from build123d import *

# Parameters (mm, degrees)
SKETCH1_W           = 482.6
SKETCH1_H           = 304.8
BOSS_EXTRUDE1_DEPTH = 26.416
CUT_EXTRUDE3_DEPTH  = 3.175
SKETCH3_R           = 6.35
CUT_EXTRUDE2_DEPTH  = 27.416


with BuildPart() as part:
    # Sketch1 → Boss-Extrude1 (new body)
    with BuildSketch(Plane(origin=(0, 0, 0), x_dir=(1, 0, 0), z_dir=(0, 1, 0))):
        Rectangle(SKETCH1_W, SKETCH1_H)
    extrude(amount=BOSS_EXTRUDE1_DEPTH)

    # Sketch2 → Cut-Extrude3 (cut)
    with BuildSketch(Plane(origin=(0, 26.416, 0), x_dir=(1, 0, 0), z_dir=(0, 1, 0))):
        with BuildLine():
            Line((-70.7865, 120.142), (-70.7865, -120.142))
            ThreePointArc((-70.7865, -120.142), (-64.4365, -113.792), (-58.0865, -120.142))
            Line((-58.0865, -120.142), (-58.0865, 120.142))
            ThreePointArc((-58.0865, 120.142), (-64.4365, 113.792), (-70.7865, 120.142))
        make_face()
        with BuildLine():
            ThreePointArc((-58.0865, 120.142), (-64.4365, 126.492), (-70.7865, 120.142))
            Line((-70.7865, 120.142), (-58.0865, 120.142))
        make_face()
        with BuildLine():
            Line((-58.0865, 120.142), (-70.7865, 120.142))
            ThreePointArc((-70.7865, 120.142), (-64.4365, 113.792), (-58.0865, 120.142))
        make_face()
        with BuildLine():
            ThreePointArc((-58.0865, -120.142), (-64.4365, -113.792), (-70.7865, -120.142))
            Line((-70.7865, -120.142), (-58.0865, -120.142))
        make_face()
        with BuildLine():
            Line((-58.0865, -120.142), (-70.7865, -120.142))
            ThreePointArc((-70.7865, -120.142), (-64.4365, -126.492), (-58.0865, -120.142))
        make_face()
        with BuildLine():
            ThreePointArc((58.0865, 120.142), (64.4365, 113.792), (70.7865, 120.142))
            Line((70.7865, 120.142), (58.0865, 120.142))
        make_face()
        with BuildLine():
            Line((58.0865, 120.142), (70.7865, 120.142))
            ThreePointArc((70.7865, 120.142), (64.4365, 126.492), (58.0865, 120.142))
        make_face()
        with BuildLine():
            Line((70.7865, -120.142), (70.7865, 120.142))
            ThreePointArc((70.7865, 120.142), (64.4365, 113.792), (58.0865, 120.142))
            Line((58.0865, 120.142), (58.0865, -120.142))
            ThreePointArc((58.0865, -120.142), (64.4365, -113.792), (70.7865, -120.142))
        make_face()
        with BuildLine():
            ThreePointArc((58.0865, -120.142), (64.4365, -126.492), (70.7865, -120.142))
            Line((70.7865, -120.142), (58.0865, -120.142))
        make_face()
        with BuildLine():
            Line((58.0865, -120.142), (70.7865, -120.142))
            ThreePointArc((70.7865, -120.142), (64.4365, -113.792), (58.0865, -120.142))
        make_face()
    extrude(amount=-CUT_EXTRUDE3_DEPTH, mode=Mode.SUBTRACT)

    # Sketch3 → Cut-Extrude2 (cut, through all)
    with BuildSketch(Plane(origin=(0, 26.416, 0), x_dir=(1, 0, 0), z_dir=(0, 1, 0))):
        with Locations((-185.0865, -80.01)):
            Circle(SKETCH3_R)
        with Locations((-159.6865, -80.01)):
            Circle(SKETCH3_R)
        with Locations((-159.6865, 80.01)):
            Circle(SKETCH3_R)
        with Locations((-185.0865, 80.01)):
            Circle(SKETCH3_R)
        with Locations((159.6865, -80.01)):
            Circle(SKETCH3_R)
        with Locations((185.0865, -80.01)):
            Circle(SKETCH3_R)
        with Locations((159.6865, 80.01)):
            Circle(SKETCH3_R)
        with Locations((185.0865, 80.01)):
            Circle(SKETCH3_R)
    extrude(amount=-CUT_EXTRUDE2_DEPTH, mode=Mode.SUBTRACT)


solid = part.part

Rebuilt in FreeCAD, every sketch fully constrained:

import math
import FreeCAD as App
import Part
import Sketcher
from FreeCAD import Vector
Q = App.Units.Quantity

doc = App.newDocument("Part")
body = doc.addObject("PartDesign::Body", "Body")

sketch1 = body.newObject("Sketcher::SketchObject", "Sketch")
sketch1.AttachmentSupport = (doc.getObject("XZ_Plane"), [""])
sketch1.MapMode = "FlatFace"
sketch1.addGeometry(Part.LineSegment(Vector(-241, -152, 0), Vector(-241, 152, 0)), False)
sketch1.addGeometry(Part.LineSegment(Vector(-241, 152, 0), Vector(241, 152, 0)), False)
sketch1.addGeometry(Part.LineSegment(Vector(241, 152, 0), Vector(241, -152, 0)), False)
sketch1.addGeometry(Part.LineSegment(Vector(241, -152, 0), Vector(-241, -152, 0)), False)
sketch1.addConstraint(Sketcher.Constraint("Coincident", 0, 2, 1, 1))
sketch1.addConstraint(Sketcher.Constraint("Coincident", 1, 2, 2, 1))
sketch1.addConstraint(Sketcher.Constraint("Coincident", 2, 2, 3, 1))
sketch1.addConstraint(Sketcher.Constraint("Coincident", 3, 2, 0, 1))
sketch1.addConstraint(Sketcher.Constraint("Vertical", 0))
sketch1.addConstraint(Sketcher.Constraint("Horizontal", 1))
sketch1.addConstraint(Sketcher.Constraint("Vertical", 2))
sketch1.addConstraint(Sketcher.Constraint("Horizontal", 3))
sketch1.addConstraint(Sketcher.Constraint("Symmetric", 0, 2, 2, 2, -1, 1))
sketch1.addConstraint(Sketcher.Constraint("DistanceX", 1, 1, 1, 2, Q("19 in")))
sketch1.addConstraint(Sketcher.Constraint("DistanceY", 0, 1, 0, 2, Q("12 in")))
pad1 = body.newObject("PartDesign::Pad", "Pad")
pad1.Profile = sketch1
pad1.Length = Q("1.04 in")
pad1.Reversed = True

sketch2 = body.newObject("Sketcher::SketchObject", "Sketch001")
sketch2.AttachmentSupport = (doc.getObject("XZ_Plane"), [""])
sketch2.MapMode = "FlatFace"
sketch2.AttachmentOffset = App.Placement(Vector(0, 0, -1.04 * 25.4), App.Rotation())
sketch2.addGeometry(Part.LineSegment(Vector(-71, -120, 0), Vector(-71, 120, 0)), False)
sketch2.addGeometry(Part.ArcOfCircle(Part.Circle(Vector(-64, 120, 0), Vector(0, 0, 1), 6), math.radians(0), math.radians(180)), False)
sketch2.addGeometry(Part.LineSegment(Vector(-58, 120, 0), Vector(-58, -120, 0)), False)
sketch2.addGeometry(Part.ArcOfCircle(Part.Circle(Vector(-64, -120, 0), Vector(0, 0, 1), 6), math.radians(180), math.radians(360)), False)
sketch2.addGeometry(Part.LineSegment(Vector(58, -120, 0), Vector(58, 120, 0)), False)
sketch2.addGeometry(Part.ArcOfCircle(Part.Circle(Vector(64, 120, 0), Vector(0, 0, 1), 6), math.radians(0), math.radians(180)), False)
sketch2.addGeometry(Part.LineSegment(Vector(71, 120, 0), Vector(71, -120, 0)), False)
sketch2.addGeometry(Part.ArcOfCircle(Part.Circle(Vector(64, -120, 0), Vector(0, 0, 1), 6), math.radians(180), math.radians(360)), False)
sketch2.addConstraint(Sketcher.Constraint("Tangent", 0, 2, 1, 2))
sketch2.addConstraint(Sketcher.Constraint("Tangent", 1, 1, 2, 1))
sketch2.addConstraint(Sketcher.Constraint("Tangent", 2, 2, 3, 2))
sketch2.addConstraint(Sketcher.Constraint("Tangent", 3, 1, 0, 1))
sketch2.addConstraint(Sketcher.Constraint("Tangent", 4, 2, 5, 2))
sketch2.addConstraint(Sketcher.Constraint("Tangent", 5, 1, 6, 1))
sketch2.addConstraint(Sketcher.Constraint("Tangent", 6, 2, 7, 2))
sketch2.addConstraint(Sketcher.Constraint("Tangent", 7, 1, 4, 1))
sketch2.addConstraint(Sketcher.Constraint("Vertical", 0))
sketch2.addConstraint(Sketcher.Constraint("Vertical", 2))
sketch2.addConstraint(Sketcher.Constraint("Vertical", 4))
sketch2.addConstraint(Sketcher.Constraint("Vertical", 6))
sketch2.addConstraint(Sketcher.Constraint("Equal", 3, 5))
sketch2.addConstraint(Sketcher.Constraint("Symmetric", 3, 3, 5, 3, -1, 1))
sketch2.addConstraint(Sketcher.Constraint("Horizontal", 1, 3, 5, 3))
sketch2.addConstraint(Sketcher.Constraint("Horizontal", 3, 3, 7, 3))
sketch2.addConstraint(Sketcher.Constraint("Radius", 1, Q("0.25 in")))
sketch2.addConstraint(Sketcher.Constraint("DistanceY", 0, 1, 0, 2, Q("9.46 in")))
sketch2.addConstraint(Sketcher.Constraint("DistanceX", 1, 3, -1, 1, 64.4365))
pocket1 = body.newObject("PartDesign::Pocket", "Pocket")
pocket1.Profile = sketch2
pocket1.Length = Q("0.125 in")
pocket1.Reversed = True

sketch3 = body.newObject("Sketcher::SketchObject", "Sketch002")
sketch3.AttachmentSupport = (doc.getObject("XZ_Plane"), [""])
sketch3.MapMode = "FlatFace"
sketch3.AttachmentOffset = App.Placement(Vector(0, 0, -1.04 * 25.4), App.Rotation())
sketch3.addGeometry(Part.Circle(Vector(-185, 80, 0), Vector(0, 0, 1), 6), False)
sketch3.addGeometry(Part.Circle(Vector(-160, 80, 0), Vector(0, 0, 1), 6), False)
sketch3.addGeometry(Part.Circle(Vector(-160, -80, 0), Vector(0, 0, 1), 6), False)
sketch3.addGeometry(Part.Circle(Vector(-185, -80, 0), Vector(0, 0, 1), 6), False)
sketch3.addGeometry(Part.Circle(Vector(160, 80, 0), Vector(0, 0, 1), 6), False)
sketch3.addGeometry(Part.Circle(Vector(185, 80, 0), Vector(0, 0, 1), 6), False)
sketch3.addGeometry(Part.Circle(Vector(160, -80, 0), Vector(0, 0, 1), 6), False)
sketch3.addGeometry(Part.Circle(Vector(185, -80, 0), Vector(0, 0, 1), 6), False)
sketch3.addConstraint(Sketcher.Constraint("Equal", 0, 1))
sketch3.addConstraint(Sketcher.Constraint("Equal", 1, 2))
sketch3.addConstraint(Sketcher.Constraint("Equal", 2, 3))
sketch3.addConstraint(Sketcher.Constraint("Equal", 3, 4))
sketch3.addConstraint(Sketcher.Constraint("Equal", 4, 5))
sketch3.addConstraint(Sketcher.Constraint("Equal", 5, 6))
sketch3.addConstraint(Sketcher.Constraint("Equal", 6, 7))
sketch3.addConstraint(Sketcher.Constraint("Symmetric", 2, 3, 4, 3, -1, 1))
sketch3.addConstraint(Sketcher.Constraint("Symmetric", 3, 3, 5, 3, -1, 1))
sketch3.addConstraint(Sketcher.Constraint("Symmetric", 1, 3, 6, 3, -1, 1))
sketch3.addConstraint(Sketcher.Constraint("Symmetric", 0, 3, 7, 3, -1, 1))
sketch3.addConstraint(Sketcher.Constraint("Symmetric", 1, 3, 4, 3, -2))
sketch3.addConstraint(Sketcher.Constraint("Symmetric", 0, 3, 5, 3, -2))
sketch3.addConstraint(Sketcher.Constraint("Horizontal", 0, 3, 1, 3))
sketch3.addConstraint(Sketcher.Constraint("Diameter", 0, Q("0.5 in")))
sketch3.addConstraint(Sketcher.Constraint("DistanceX", 0, 3, 1, 3, Q("1 in")))
sketch3.addConstraint(Sketcher.Constraint("DistanceY", 2, 3, 1, 3, Q("6.3 in")))
sketch3.addConstraint(Sketcher.Constraint("DistanceX", 0, 3, -1, 1, 185.0865))
pocket2 = body.newObject("PartDesign::Pocket", "Pocket001")
pocket2.Profile = sketch3
pocket2.Type = "ThroughAll"
pocket2.Reversed = True

doc.recompute()
